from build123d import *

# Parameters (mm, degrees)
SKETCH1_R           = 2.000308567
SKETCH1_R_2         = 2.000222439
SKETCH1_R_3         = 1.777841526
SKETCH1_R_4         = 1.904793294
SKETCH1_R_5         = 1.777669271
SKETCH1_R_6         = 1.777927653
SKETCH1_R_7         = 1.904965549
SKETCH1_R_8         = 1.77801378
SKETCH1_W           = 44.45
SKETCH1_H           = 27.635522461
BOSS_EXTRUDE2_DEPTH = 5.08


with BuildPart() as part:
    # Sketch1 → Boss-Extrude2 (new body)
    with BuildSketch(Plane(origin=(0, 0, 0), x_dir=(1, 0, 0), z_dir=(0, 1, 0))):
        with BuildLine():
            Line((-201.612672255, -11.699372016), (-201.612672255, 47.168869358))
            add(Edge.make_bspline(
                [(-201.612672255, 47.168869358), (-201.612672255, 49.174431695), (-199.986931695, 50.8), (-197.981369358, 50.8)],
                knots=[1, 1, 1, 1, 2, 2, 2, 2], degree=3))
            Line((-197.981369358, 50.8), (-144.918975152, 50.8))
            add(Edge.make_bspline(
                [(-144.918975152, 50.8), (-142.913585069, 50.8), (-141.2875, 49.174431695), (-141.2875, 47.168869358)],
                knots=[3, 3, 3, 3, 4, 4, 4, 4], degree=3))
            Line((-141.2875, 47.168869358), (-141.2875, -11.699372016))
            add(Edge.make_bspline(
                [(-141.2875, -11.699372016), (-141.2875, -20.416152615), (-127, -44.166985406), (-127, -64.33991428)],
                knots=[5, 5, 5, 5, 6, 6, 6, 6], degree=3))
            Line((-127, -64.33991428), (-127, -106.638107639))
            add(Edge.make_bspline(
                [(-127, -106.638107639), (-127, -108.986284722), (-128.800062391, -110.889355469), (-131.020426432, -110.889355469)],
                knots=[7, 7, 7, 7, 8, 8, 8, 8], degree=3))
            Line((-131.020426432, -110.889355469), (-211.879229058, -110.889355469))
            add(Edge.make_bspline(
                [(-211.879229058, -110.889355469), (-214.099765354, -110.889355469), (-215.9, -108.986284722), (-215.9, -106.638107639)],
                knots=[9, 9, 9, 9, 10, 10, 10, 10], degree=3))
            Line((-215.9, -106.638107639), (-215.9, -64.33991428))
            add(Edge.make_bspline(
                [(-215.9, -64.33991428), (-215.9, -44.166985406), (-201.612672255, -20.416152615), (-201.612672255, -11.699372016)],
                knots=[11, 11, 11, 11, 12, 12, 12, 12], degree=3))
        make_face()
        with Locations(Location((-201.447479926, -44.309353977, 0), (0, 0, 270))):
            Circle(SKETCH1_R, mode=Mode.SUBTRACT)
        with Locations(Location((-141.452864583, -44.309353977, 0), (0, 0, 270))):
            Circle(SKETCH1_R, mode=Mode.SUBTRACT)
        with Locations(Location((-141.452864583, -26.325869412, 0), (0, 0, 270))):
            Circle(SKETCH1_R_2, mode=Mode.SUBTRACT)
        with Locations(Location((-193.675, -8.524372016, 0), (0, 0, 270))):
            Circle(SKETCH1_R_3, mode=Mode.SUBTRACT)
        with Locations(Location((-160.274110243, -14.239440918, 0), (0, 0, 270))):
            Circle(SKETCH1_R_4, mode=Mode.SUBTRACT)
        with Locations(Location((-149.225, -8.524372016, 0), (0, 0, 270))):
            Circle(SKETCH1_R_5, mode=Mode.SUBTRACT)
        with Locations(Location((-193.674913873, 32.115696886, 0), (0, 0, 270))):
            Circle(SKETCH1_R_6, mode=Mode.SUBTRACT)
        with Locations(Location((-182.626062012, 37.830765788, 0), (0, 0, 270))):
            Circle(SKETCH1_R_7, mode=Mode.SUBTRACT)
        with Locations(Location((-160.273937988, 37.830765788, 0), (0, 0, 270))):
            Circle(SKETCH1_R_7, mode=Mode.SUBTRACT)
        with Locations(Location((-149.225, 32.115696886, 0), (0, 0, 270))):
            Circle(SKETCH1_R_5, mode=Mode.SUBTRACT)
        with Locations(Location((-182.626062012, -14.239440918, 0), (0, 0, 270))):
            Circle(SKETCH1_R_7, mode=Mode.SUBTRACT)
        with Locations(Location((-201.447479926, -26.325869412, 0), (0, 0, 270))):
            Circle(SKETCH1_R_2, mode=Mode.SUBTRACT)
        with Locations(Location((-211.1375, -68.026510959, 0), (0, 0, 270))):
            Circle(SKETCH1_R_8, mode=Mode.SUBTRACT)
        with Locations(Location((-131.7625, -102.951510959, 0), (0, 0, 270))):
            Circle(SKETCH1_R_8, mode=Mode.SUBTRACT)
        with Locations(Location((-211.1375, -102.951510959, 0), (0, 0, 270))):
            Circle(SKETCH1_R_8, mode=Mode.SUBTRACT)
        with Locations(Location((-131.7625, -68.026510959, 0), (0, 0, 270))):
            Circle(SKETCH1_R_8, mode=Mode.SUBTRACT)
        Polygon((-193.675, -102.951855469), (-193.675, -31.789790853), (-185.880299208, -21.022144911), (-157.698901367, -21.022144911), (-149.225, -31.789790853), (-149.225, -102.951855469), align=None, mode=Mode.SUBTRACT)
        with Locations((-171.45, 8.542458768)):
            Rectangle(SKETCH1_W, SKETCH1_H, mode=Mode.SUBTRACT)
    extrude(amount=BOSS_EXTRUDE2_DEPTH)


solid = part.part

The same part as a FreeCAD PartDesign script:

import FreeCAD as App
import Part
import Sketcher
Q = App.Units.Quantity


def add_polygon(sketch, points):
    """Adds a closed chain of lines whose ends are joined by coincident constraints."""
    first, n = sketch.GeometryCount, len(points)
    for a, b in zip(points, points[1:] + points[:1]):
        sketch.addGeometry(Part.LineSegment(App.Vector(*a, 0), App.Vector(*b, 0)), False)
    for i in range(n):
        sketch.addConstraint(Sketcher.Constraint("Coincident", first + i, 2, first + (i + 1) % n, 1))

doc = App.newDocument("Part")
params = doc.addObject("Spreadsheet::Sheet", "Params")
for row, (alias, value) in enumerate([
    ("sketch1_width", "1.75 in"),
    ("pad1_length", "0.2 in"),
], start=1):
    params.set(f"A{row}", alias)
    params.set(f"B{row}", "=" + value)
    params.setAlias(f"B{row}", alias)

body = doc.addObject("PartDesign::Body", "Body")

sketch1 = body.newObject("Sketcher::SketchObject", "Sketch")
sketch1.AttachmentSupport = (doc.getObject("XZ_Plane"), [""])
sketch1.MapMode = "FlatFace"
sketch1.addGeometry(Part.LineSegment(App.Vector(-201.612672, -47.168869, 0), App.Vector(-201.612672, 11.699372, 0)), False)
sketch1.addGeometry(Part.BSplineCurve([App.Vector(-215.9, 64.339914, 0), App.Vector(-215.9, 44.166985, 0), App.Vector(-201.612672, 20.416153, 0), App.Vector(-201.612672, 11.699372, 0)], [4, 4], [11, 12], False, 3, [1, 1, 1, 1], False), False)
sketch1.addGeometry(Part.LineSegment(App.Vector(-215.9, 64.339914, 0), App.Vector(-215.9, 106.638108, 0)), False)
sketch1.addGeometry(Part.BSplineCurve([App.Vector(-211.879229, 110.889355, 0), App.Vector(-214.099765, 110.889355, 0), App.Vector(-215.9, 108.986285, 0), App.Vector(-215.9, 106.638108, 0)], [4, 4], [9, 10], False, 3, [1, 1, 1, 1], False), False)
sketch1.addGeometry(Part.LineSegment(App.Vector(-211.879229, 110.889355, 0), App.Vector(-131.020426, 110.889355, 0)), False)
sketch1.addGeometry(Part.BSplineCurve([App.Vector(-127, 106.638108, 0), App.Vector(-127, 108.986285, 0), App.Vector(-128.800062, 110.889355, 0), App.Vector(-131.020426, 110.889355, 0)], [4, 4], [7, 8], False, 3, [1, 1, 1, 1], False), False)
sketch1.addGeometry(Part.LineSegment(App.Vector(-127, 106.638108, 0), App.Vector(-127, 64.339914, 0)), False)
sketch1.addGeometry(Part.BSplineCurve([App.Vector(-141.2875, 11.699372, 0), App.Vector(-141.2875, 20.416153, 0), App.Vector(-127, 44.166985, 0), App.Vector(-127, 64.339914, 0)], [4, 4], [5, 6], False, 3, [1, 1, 1, 1], False), False)
sketch1.addGeometry(Part.LineSegment(App.Vector(-141.2875, 11.699372, 0), App.Vector(-141.2875, -47.168869, 0)), False)
sketch1.addGeometry(Part.BSplineCurve([App.Vector(-144.918975, -50.8, 0), App.Vector(-142.913585, -50.8, 0), App.Vector(-141.2875, -49.174432, 0), App.Vector(-141.2875, -47.168869, 0)], [4, 4], [3, 4], False, 3, [1, 1, 1, 1], False), False)
sketch1.addGeometry(Part.LineSegment(App.Vector(-144.918975, -50.8, 0), App.Vector(-197.981369, -50.8, 0)), False)
sketch1.addGeometry(Part.BSplineCurve([App.Vector(-201.612672, -47.168869, 0), App.Vector(-201.612672, -49.174432, 0), App.Vector(-199.986932, -50.8, 0), App.Vector(-197.981369, -50.8, 0)], [4, 4], [1, 2], False, 3, [1, 1, 1, 1], False), False)
sketch1.addGeometry(Part.Circle(App.Vector(-131.7625, 102.951511, 0), App.Vector(0, 0, 1), 1.778014), False)
sketch1.addGeometry(Part.Circle(App.Vector(-131.7625, 68.026511, 0), App.Vector(0, 0, 1), 1.778014), False)
sketch1.addGeometry(Part.Circle(App.Vector(-141.452865, 44.309354, 0), App.Vector(0, 0, 1), 2.000309), False)
sketch1.addGeometry(Part.Circle(App.Vector(-211.1375, 102.951511, 0), App.Vector(0, 0, 1), 1.778014), False)
add_polygon(sketch1, [(-193.675, 102.951855), (-193.675, 31.789791), (-185.880299, 21.022145), (-157.698901, 21.022145), (-149.225, 31.789791), (-149.225, 102.951855)])
sketch1.addGeometry(Part.Circle(App.Vector(-211.1375, 68.026511, 0), App.Vector(0, 0, 1), 1.778014), False)
sketch1.addGeometry(Part.Circle(App.Vector(-201.44748, 44.309354, 0), App.Vector(0, 0, 1), 2.000309), False)
sketch1.addGeometry(Part.Circle(App.Vector(-141.452865, 26.325869, 0), App.Vector(0, 0, 1), 2.000222), False)
sketch1.addGeometry(Part.Circle(App.Vector(-149.225, 8.524372, 0), App.Vector(0, 0, 1), 1.777669), False)
sketch1.addGeometry(Part.Circle(App.Vector(-160.27411, 14.239441, 0), App.Vector(0, 0, 1), 1.904793), False)
sketch1.addGeometry(Part.Circle(App.Vector(-149.225, -32.115697, 0), App.Vector(0, 0, 1), 1.777669), False)
sketch1.addGeometry(Part.Circle(App.Vector(-160.273938, -37.830766, 0), App.Vector(0, 0, 1), 1.904966), False)
sketch1.addGeometry(Part.Circle(App.Vector(-182.626062, 14.239441, 0), App.Vector(0, 0, 1), 1.904966), False)
sketch1.addGeometry(Part.Circle(App.Vector(-201.44748, 26.325869, 0), App.Vector(0, 0, 1), 2.000222), False)
sketch1.addGeometry(Part.Circle(App.Vector(-193.675, 8.524372, 0), App.Vector(0, 0, 1), 1.777842), False)
add_polygon(sketch1, [(-193.675, 5.275302), (-193.675, -22.36022), (-149.225, -22.36022), (-149.225, 5.275302)])
sketch1.addGeometry(Part.Circle(App.Vector(-182.626062, -37.830766, 0), App.Vector(0, 0, 1), 1.904966), False)
sketch1.addGeometry(Part.Circle(App.Vector(-193.674914, -32.115697, 0), App.Vector(0, 0, 1), 1.777928), False)
sketch1.addConstraint(Sketcher.Constraint("Block", 1))
sketch1.addConstraint(Sketcher.Constraint("Block", 3))
sketch1.addConstraint(Sketcher.Constraint("Block", 5))
sketch1.addConstraint(Sketcher.Constraint("Block", 7))
sketch1.addConstraint(Sketcher.Constraint("Block", 9))
sketch1.addConstraint(Sketcher.Constraint("Block", 11))
sketch1.addConstraint(Sketcher.Constraint("Coincident", 0, 2, 1, 2))
sketch1.addConstraint(Sketcher.Constraint("Coincident", 1, 1, 2, 1))
sketch1.addConstraint(Sketcher.Constraint("Coincident", 2, 2, 3, 2))
sketch1.addConstraint(Sketcher.Constraint("Coincident", 3, 1, 4, 1))
sketch1.addConstraint(Sketcher.Constraint("Coincident", 4, 2, 5, 2))
sketch1.addConstraint(Sketcher.Constraint("Coincident", 5, 1, 6, 1))
sketch1.addConstraint(Sketcher.Constraint("Coincident", 6, 2, 7, 2))
sketch1.addConstraint(Sketcher.Constraint("Coincident", 7, 1, 8, 1))
sketch1.addConstraint(Sketcher.Constraint("Coincident", 8, 2, 9, 2))
sketch1.addConstraint(Sketcher.Constraint("Coincident", 9, 1, 10, 1))
sketch1.addConstraint(Sketcher.Constraint("Coincident", 10, 2, 11, 2))
sketch1.addConstraint(Sketcher.Constraint("Coincident", 11, 1, 0, 1))
sketch1.addConstraint(Sketcher.Constraint("Vertical", 16))
sketch1.addConstraint(Sketcher.Constraint("Horizontal", 18))
sketch1.addConstraint(Sketcher.Constraint("Vertical", 20))
sketch1.addConstraint(Sketcher.Constraint("Horizontal", 21))
sketch1.addConstraint(Sketcher.Constraint("Vertical", 32))
sketch1.addConstraint(Sketcher.Constraint("Horizontal", 33))
sketch1.addConstraint(Sketcher.Constraint("Vertical", 34))
sketch1.addConstraint(Sketcher.Constraint("Horizontal", 35))
sketch1.addConstraint(Sketcher.Constraint("Equal", 12, 13))
sketch1.addConstraint(Sketcher.Constraint("Equal", 13, 15))
sketch1.addConstraint(Sketcher.Constraint("Equal", 15, 22))
sketch1.addConstraint(Sketcher.Constraint("Equal", 14, 23))
sketch1.addConstraint(Sketcher.Constraint("Equal", 25, 27))
sketch1.addConstraint(Sketcher.Constraint("Equal", 28, 29))
sketch1.addConstraint(Sketcher.Constraint("Equal", 24, 30))
sketch1.addConstraint(Sketcher.Constraint("Equal", 29, 36))
sketch1.addConstraint(Sketcher.Constraint("Horizontal", 12, 3, 15, 3))
sketch1.addConstraint(Sketcher.Constraint("Horizontal", 13, 3, 22, 3))
sketch1.addConstraint(Sketcher.Constraint("Horizontal", 14, 3, 23, 3))
sketch1.addConstraint(Sketcher.Constraint("Horizontal", 26, 3, 29, 3))
sketch1.addConstraint(Sketcher.Constraint("Horizontal", 24, 3, 30, 3))
sketch1.addConstraint(Sketcher.Constraint("Horizontal", 25, 3, 31, 3))
sketch1.addConstraint(Sketcher.Constraint("Horizontal", 28, 3, 36, 3))
sketch1.addConstraint(Sketcher.Constraint("Horizontal", 27, 3, 37, 3))
sketch1.addConstraint(Sketcher.Constraint("Horizontal", 16, 2, 19, 2))
sketch1.addConstraint(Sketcher.Constraint("Vertical", 12, 3, 13, 3))
sketch1.addConstraint(Sketcher.Constraint("Vertical", 15, 3, 22, 3))
sketch1.addConstraint(Sketcher.Constraint("Vertical", 14, 3, 24, 3))
sketch1.addConstraint(Sketcher.Constraint("Vertical", 25, 3, 27, 3))
sketch1.addConstraint(Sketcher.Constraint("Vertical", 23, 3, 30, 3))
sketch1.addConstraint(Sketcher.Constraint("Vertical", 29, 3, 36, 3))
sketch1.addConstraint(Sketcher.Constraint("Vertical", 31, 3, 16, 2))
sketch1.addConstraint(Sketcher.Constraint("Vertical", 27, 3, 19, 2))
sketch1.addConstraint(Sketcher.Constraint("Vertical", 21, 2, 32, 2))
sketch1.addConstraint(Sketcher.Constraint("Vertical", 20, 2, 33, 2))
sketch1.addConstraint(Sketcher.Constraint("DistanceX", 21, 2, 21, 1, Q("1.75 in")))
sketch1.addConstraint(Sketcher.Constraint("Diameter", 25, Q("3.555339 mm")))
sketch1.addConstraint(Sketcher.Constraint("Diameter", 28, Q("3.809931 mm")))
sketch1.addConstraint(Sketcher.Constraint("DistanceX", 12, 3, -1, 1, Q("5.1875 in")))
sketch1.addConstraint(Sketcher.Constraint("DistanceX", 15, 3, -1, 1, Q("8.3125 in")))
sketch1.addConstraint(Sketcher.Constraint("DistanceX", 25, 3, -1, 1, Q("5.875 in")))
sketch1.addConstraint(Sketcher.Constraint("DistanceY", 13, 3, 12, 3, Q("1.375 in")))
sketch1.addConstraint(Sketcher.Constraint("DistanceY", 31, 3, 0, 2, Q("0.125 in")))
sketch1.addConstraint(Sketcher.Constraint("DistanceY", 20, 2, 4, 2, Q("0.3125 in")))
sketch1.addConstraint(Sketcher.Constraint("Diameter", 12, Q("3.556028 mm")))
sketch1.addConstraint(Sketcher.Constraint("Diameter", 14, Q("4.000617 mm")))
sketch1.addConstraint(Sketcher.Constraint("Diameter", 24, Q("4.000445 mm")))
sketch1.addConstraint(Sketcher.Constraint("Diameter", 26, Q("3.809587 mm")))
sketch1.addConstraint(Sketcher.Constraint("Diameter", 31, Q("3.555683 mm")))
sketch1.addConstraint(Sketcher.Constraint("Diameter", 37, Q("3.555855 mm")))
sketch1.addConstraint(Sketcher.Constraint("DistanceX", 17, 2, -1, 1, Q("185.880299 mm")))
sketch1.addConstraint(Sketcher.Constraint("DistanceX", 18, 2, -1, 1, Q("157.698901 mm")))
sketch1.addConstraint(Sketcher.Constraint("DistanceY", 14, 3, 4, 2, Q("66.580001 mm")))
sketch1.addConstraint(Sketcher.Constraint("Distance", 17, Q("13.292839 mm")))
sketch1.addConstraint(Sketcher.Constraint("DistanceY", 16, 2, 16, 1, Q("71.162065 mm")))
sketch1.addConstraint(Sketcher.Constraint("DistanceY", 32, 2, 32, 1, Q("27.635522 mm")))
sketch1.addConstraint(Sketcher.Constraint("DistanceY", -1, 1, 12, 3, Q("102.951511 mm")))
sketch1.addConstraint(Sketcher.Constraint("DistanceX", 23, 3, -1, 1, Q("201.44748 mm")))
sketch1.addConstraint(Sketcher.Constraint("DistanceY", -1, 1, 24, 3, Q("26.325869 mm")))
sketch1.addConstraint(Sketcher.Constraint("DistanceX", 26, 3, -1, 1, Q("160.27411 mm")))
sketch1.addConstraint(Sketcher.Constraint("DistanceY", -1, 1, 26, 3, Q("14.239441 mm")))
sketch1.addConstraint(Sketcher.Constraint("DistanceY", 32, 2, -1, 1, Q("22.36022 mm")))
sketch1.addConstraint(Sketcher.Constraint("DistanceY", 27, 3, 25, 3, Q("40.640069 mm")))
sketch1.addConstraint(Sketcher.Constraint("DistanceY", 28, 3, 27, 3, Q("5.715069 mm")))
sketch1.addConstraint(Sketcher.Constraint("DistanceX", 29, 3, 26, 3, Q("22.351952 mm")))
sketch1.addConstraint(Sketcher.Constraint("DistanceX", 37, 3, 36, 3, Q("11.048852 mm")))
sketch1.addConstraint(Sketcher.Constraint("DistanceX", 14, 3, 4, 2, Q("10.432438 mm")))
sketch1.addConstraint(Sketcher.Constraint("DistanceX", 10, 2, 28, 3, Q("37.707431 mm")))
sketch1.setExpression("Constraints[63]", "Params.sketch1_width")
pad1 = body.newObject("PartDesign::Pad", "Pad")
pad1.Profile = sketch1
pad1.setExpression("Length", "Params.pad1_length")
pad1.Reversed = True

doc.recompute()
